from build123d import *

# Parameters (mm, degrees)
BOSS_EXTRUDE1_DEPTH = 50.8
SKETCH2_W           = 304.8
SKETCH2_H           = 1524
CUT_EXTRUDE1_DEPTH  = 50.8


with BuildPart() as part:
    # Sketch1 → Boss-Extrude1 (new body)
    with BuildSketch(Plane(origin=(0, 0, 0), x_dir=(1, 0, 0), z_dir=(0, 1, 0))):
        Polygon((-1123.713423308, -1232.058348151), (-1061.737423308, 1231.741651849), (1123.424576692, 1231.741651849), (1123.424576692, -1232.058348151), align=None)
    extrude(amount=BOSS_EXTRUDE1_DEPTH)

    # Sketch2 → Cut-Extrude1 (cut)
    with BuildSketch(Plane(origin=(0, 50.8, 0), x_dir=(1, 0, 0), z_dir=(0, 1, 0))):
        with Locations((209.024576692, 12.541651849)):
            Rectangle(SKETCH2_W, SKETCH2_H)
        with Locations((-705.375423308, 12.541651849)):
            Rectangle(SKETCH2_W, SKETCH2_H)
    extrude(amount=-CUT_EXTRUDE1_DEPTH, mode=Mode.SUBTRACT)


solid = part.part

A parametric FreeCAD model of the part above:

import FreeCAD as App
import Part
import Sketcher
Q = App.Units.Quantity

doc = App.newDocument("Part")
body = doc.addObject("PartDesign::Body", "Body")

# Sketch on XZ plane
sketch1 = body.newObject("Sketcher::SketchObject", "Sketch")
sketch1.AttachmentSupport = (doc.getObject("XZ_Plane"), [""])
sketch1.MapMode = "FlatFace"
sketch1.addGeometry(Part.LineSegment(App.Vector(-1061.737423, -1231.741652, 0), App.Vector(-1123.713423, 1232.058348, 0)), False)
sketch1.addGeometry(Part.LineSegment(App.Vector(-1123.713423, 1232.058348, 0), App.Vector(1123.424577, 1232.058348, 0)), False)
sketch1.addGeometry(Part.LineSegment(App.Vector(1123.424577, 1232.058348, 0), App.Vector(1123.424577, -1231.741652, 0)), False)
sketch1.addGeometry(Part.LineSegment(App.Vector(1123.424577, -1231.741652, 0), App.Vector(-1061.737423, -1231.741652, 0)), False)
sketch1.addConstraint(Sketcher.Constraint("Coincident", 0, 2, 1, 1))
sketch1.addConstraint(Sketcher.Constraint("Coincident", 1, 2, 2, 1))
sketch1.addConstraint(Sketcher.Constraint("Coincident", 2, 2, 3, 1))
sketch1.addConstraint(Sketcher.Constraint("Coincident", 3, 2, 0, 1))
sketch1.addConstraint(Sketcher.Constraint("Horizontal", 1))
sketch1.addConstraint(Sketcher.Constraint("Vertical", 2))
sketch1.addConstraint(Sketcher.Constraint("Horizontal", 3))
sketch1.addConstraint(Sketcher.Constraint("DistanceY", 2, 2, 2, 1, Q("97 in")))
sketch1.addConstraint(Sketcher.Constraint("DistanceX", 1, 1, 1, 2, Q("88.47 in")))
sketch1.addConstraint(Sketcher.Constraint("DistanceX", 3, 2, 3, 1, Q("86.03 in")))
sketch1.addConstraint(Sketcher.Constraint("DistanceY", -1, 1, 0, 2, 1232.058348))
sketch1.addConstraint(Sketcher.Constraint("DistanceX", 0, 2, -1, 1, 1123.713423))
pad1 = body.newObject("PartDesign::Pad", "Pad")
pad1.Profile = sketch1
pad1.Length = Q("2 in")
pad1.Reversed = True

# Sketch on XZ plane
sketch2 = body.newObject("Sketcher::SketchObject", "Sketch001")
sketch2.AttachmentSupport = (doc.getObject("XZ_Plane"), [""])
sketch2.MapMode = "FlatFace"
sketch2.AttachmentOffset = App.Placement(App.Vector(0, 0, -2 * 25.4), App.Rotation())
sketch2.addGeometry(Part.LineSegment(App.Vector(56.624577, -774.541652, 0), App.Vector(56.624577, 749.458348, 0)), False)
sketch2.addGeometry(Part.LineSegment(App.Vector(56.624577, 749.458348, 0), App.Vector(361.424577, 749.458348, 0)), False)
sketch2.addGeometry(Part.LineSegment(App.Vector(361.424577, 749.458348, 0), App.Vector(361.424577, -774.541652, 0)), False)
sketch2.addGeometry(Part.LineSegment(App.Vector(361.424577, -774.541652, 0), App.Vector(56.624577, -774.541652, 0)), False)
sketch2.addGeometry(Part.LineSegment(App.Vector(-857.775423, -774.541652, 0), App.Vector(-857.775423, 749.458348, 0)), False)
sketch2.addGeometry(Part.LineSegment(App.Vector(-857.775423, 749.458348, 0), App.Vector(-552.975423, 749.458348, 0)), False)
sketch2.addGeometry(Part.LineSegment(App.Vector(-552.975423, 749.458348, 0), App.Vector(-552.975423, -774.541652, 0)), False)
sketch2.addGeometry(Part.LineSegment(App.Vector(-552.975423, -774.541652, 0), App.Vector(-857.775423, -774.541652, 0)), False)
sketch2.addConstraint(Sketcher.Constraint("Coincident", 0, 2, 1, 1))
sketch2.addConstraint(Sketcher.Constraint("Coincident", 1, 2, 2, 1))
sketch2.addConstraint(Sketcher.Constraint("Coincident", 2, 2, 3, 1))
sketch2.addConstraint(Sketcher.Constraint("Coincident", 3, 2, 0, 1))
sketch2.addConstraint(Sketcher.Constraint("Coincident", 4, 2, 5, 1))
sketch2.addConstraint(Sketcher.Constraint("Coincident", 5, 2, 6, 1))
sketch2.addConstraint(Sketcher.Constraint("Coincident", 6, 2, 7, 1))
sketch2.addConstraint(Sketcher.Constraint("Coincident", 7, 2, 4, 1))
sketch2.addConstraint(Sketcher.Constraint("Vertical", 0))
sketch2.addConstraint(Sketcher.Constraint("Horizontal", 1))
sketch2.addConstraint(Sketcher.Constraint("Vertical", 2))
sketch2.addConstraint(Sketcher.Constraint("Horizontal", 3))
sketch2.addConstraint(Sketcher.Constraint("Vertical", 4))
sketch2.addConstraint(Sketcher.Constraint("Horizontal", 5))
sketch2.addConstraint(Sketcher.Constraint("Vertical", 6))
sketch2.addConstraint(Sketcher.Constraint("Horizontal", 7))
sketch2.addConstraint(Sketcher.Constraint("Horizontal", 1, 2, 4, 2))
sketch2.addConstraint(Sketcher.Constraint("Horizontal", 3, 2, 6, 2))
sketch2.addConstraint(Sketcher.Constraint("Equal", 3, 5))
sketch2.addConstraint(Sketcher.Constraint("DistanceX", 1, 1, 1, 2, Q("12 in")))
sketch2.addConstraint(Sketcher.Constraint("DistanceY", 0, 1, 0, 2, Q("60 in")))
sketch2.addConstraint(Sketcher.Constraint("DistanceX", 4, 2, 0, 2, Q("36 in")))
sketch2.addConstraint(Sketcher.Constraint("DistanceY", -1, 1, 0, 2, 749.458348))
sketch2.addConstraint(Sketcher.Constraint("DistanceX", -1, 1, 0, 2, 56.624577))
pocket1 = body.newObject("PartDesign::Pocket", "Pocket")
pocket1.Profile = sketch2
pocket1.Length = Q("2 in")
pocket1.Reversed = True

doc.recompute()
